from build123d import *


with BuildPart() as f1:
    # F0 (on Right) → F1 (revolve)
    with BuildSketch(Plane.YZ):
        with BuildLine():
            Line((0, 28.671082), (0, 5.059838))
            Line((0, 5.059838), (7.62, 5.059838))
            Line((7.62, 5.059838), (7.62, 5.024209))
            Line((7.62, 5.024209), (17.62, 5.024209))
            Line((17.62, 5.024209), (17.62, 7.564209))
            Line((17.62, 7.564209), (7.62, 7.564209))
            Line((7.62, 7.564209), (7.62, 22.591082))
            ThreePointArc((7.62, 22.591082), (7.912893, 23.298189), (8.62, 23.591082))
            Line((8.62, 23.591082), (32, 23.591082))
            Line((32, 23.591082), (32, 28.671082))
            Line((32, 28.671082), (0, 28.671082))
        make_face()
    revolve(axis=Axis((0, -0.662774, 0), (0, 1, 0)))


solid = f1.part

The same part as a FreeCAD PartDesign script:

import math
import FreeCAD as App
import Part
import Sketcher
from FreeCAD import Vector
Q = App.Units.Quantity

doc = App.newDocument("Part")
body = doc.addObject("PartDesign::Body", "Body")

# Sketch on YZ plane
sketch1 = body.newObject("Sketcher::SketchObject", "Sketch")
sketch1.AttachmentSupport = (doc.getObject("YZ_Plane"), [""])
sketch1.MapMode = "FlatFace"
sketch1.addGeometry(Part.LineSegment(Vector(0, 28.671, 0), Vector(0, 5.06, 0)), False)
sketch1.addGeometry(Part.LineSegment(Vector(0, 5.06, 0), Vector(7.62, 5.06, 0)), False)
sketch1.addGeometry(Part.LineSegment(Vector(7.62, 5.06, 0), Vector(7.62, 5.024, 0)), False)
sketch1.addGeometry(Part.LineSegment(Vector(7.62, 5.024, 0), Vector(17.62, 5.024, 0)), False)
sketch1.addGeometry(Part.LineSegment(Vector(17.62, 5.024, 0), Vector(17.62, 7.564, 0)), False)
sketch1.addGeometry(Part.LineSegment(Vector(17.62, 7.564, 0), Vector(7.62, 7.564, 0)), False)
sketch1.addGeometry(Part.LineSegment(Vector(7.62, 7.564, 0), Vector(7.62, 22.591, 0)), False)
sketch1.addGeometry(Part.ArcOfCircle(Part.Circle(Vector(8.62, 22.591, 0), Vector(0, 0, 1), 1), math.radians(90), math.radians(180)), False)
sketch1.addGeometry(Part.LineSegment(Vector(8.62, 23.591, 0), Vector(32, 23.591, 0)), False)
sketch1.addGeometry(Part.LineSegment(Vector(32, 23.591, 0), Vector(32, 28.671, 0)), False)
sketch1.addGeometry(Part.LineSegment(Vector(32, 28.671, 0), Vector(0, 28.671, 0)), False)
sketch1.addConstraint(Sketcher.Constraint("Coincident", 0, 2, 1, 1))
sketch1.addConstraint(Sketcher.Constraint("Coincident", 1, 2, 2, 1))
sketch1.addConstraint(Sketcher.Constraint("Coincident", 2, 2, 3, 1))
sketch1.addConstraint(Sketcher.Constraint("Coincident", 3, 2, 4, 1))
sketch1.addConstraint(Sketcher.Constraint("Coincident", 4, 2, 5, 1))
sketch1.addConstraint(Sketcher.Constraint("Coincident", 5, 2, 6, 1))
sketch1.addConstraint(Sketcher.Constraint("Tangent", 6, 2, 7, 2))
sketch1.addConstraint(Sketcher.Constraint("Tangent", 7, 1, 8, 1))
sketch1.addConstraint(Sketcher.Constraint("Coincident", 8, 2, 9, 1))
sketch1.addConstraint(Sketcher.Constraint("Coincident", 9, 2, 10, 1))
sketch1.addConstraint(Sketcher.Constraint("Coincident", 10, 2, 0, 1))
sketch1.addConstraint(Sketcher.Constraint("Vertical", 0))
sketch1.addConstraint(Sketcher.Constraint("Horizontal", 1))
sketch1.addConstraint(Sketcher.Constraint("Vertical", 2))
sketch1.addConstraint(Sketcher.Constraint("Horizontal", 3))
sketch1.addConstraint(Sketcher.Constraint("Vertical", 4))
sketch1.addConstraint(Sketcher.Constraint("Horizontal", 5))
sketch1.addConstraint(Sketcher.Constraint("Vertical", 6))
sketch1.addConstraint(Sketcher.Constraint("Horizontal", 8))
sketch1.addConstraint(Sketcher.Constraint("Vertical", 9))
sketch1.addConstraint(Sketcher.Constraint("Horizontal", 10))
sketch1.addConstraint(Sketcher.Constraint("PointOnObject", 0, 2, -2))
sketch1.addConstraint(Sketcher.Constraint("Vertical", 2, 2, 5, 2))
sketch1.addConstraint(Sketcher.Constraint("Radius", 7, Q("0.999999 mm")))
sketch1.addConstraint(Sketcher.Constraint("DistanceX", 3, 1, 3, 2, Q("10 mm")))
sketch1.addConstraint(Sketcher.Constraint("DistanceX", 10, 2, 10, 1, Q("32 mm")))
sketch1.addConstraint(Sketcher.Constraint("DistanceX", 1, 1, 1, 2, Q("7.62 mm")))
sketch1.addConstraint(Sketcher.Constraint("DistanceY", 4, 1, 4, 2, Q("2.54 mm")))
sketch1.addConstraint(Sketcher.Constraint("DistanceY", 9, 1, 9, 2, Q("5.08 mm")))
sketch1.addConstraint(Sketcher.Constraint("DistanceY", 2, 2, 2, 1, Q("0.035629 mm")))
sketch1.addConstraint(Sketcher.Constraint("DistanceY", 0, 2, 0, 1, Q("23.611244 mm")))
sketch1.addConstraint(Sketcher.Constraint("DistanceY", -1, 1, 2, 2, Q("5.024209 mm")))
revolution = body.newObject("PartDesign::Revolution", "Revolution")
revolution.Profile = sketch1
revolution.ReferenceAxis = (sketch1, ["H_Axis"])
revolution.Angle = 360

doc.recompute()
